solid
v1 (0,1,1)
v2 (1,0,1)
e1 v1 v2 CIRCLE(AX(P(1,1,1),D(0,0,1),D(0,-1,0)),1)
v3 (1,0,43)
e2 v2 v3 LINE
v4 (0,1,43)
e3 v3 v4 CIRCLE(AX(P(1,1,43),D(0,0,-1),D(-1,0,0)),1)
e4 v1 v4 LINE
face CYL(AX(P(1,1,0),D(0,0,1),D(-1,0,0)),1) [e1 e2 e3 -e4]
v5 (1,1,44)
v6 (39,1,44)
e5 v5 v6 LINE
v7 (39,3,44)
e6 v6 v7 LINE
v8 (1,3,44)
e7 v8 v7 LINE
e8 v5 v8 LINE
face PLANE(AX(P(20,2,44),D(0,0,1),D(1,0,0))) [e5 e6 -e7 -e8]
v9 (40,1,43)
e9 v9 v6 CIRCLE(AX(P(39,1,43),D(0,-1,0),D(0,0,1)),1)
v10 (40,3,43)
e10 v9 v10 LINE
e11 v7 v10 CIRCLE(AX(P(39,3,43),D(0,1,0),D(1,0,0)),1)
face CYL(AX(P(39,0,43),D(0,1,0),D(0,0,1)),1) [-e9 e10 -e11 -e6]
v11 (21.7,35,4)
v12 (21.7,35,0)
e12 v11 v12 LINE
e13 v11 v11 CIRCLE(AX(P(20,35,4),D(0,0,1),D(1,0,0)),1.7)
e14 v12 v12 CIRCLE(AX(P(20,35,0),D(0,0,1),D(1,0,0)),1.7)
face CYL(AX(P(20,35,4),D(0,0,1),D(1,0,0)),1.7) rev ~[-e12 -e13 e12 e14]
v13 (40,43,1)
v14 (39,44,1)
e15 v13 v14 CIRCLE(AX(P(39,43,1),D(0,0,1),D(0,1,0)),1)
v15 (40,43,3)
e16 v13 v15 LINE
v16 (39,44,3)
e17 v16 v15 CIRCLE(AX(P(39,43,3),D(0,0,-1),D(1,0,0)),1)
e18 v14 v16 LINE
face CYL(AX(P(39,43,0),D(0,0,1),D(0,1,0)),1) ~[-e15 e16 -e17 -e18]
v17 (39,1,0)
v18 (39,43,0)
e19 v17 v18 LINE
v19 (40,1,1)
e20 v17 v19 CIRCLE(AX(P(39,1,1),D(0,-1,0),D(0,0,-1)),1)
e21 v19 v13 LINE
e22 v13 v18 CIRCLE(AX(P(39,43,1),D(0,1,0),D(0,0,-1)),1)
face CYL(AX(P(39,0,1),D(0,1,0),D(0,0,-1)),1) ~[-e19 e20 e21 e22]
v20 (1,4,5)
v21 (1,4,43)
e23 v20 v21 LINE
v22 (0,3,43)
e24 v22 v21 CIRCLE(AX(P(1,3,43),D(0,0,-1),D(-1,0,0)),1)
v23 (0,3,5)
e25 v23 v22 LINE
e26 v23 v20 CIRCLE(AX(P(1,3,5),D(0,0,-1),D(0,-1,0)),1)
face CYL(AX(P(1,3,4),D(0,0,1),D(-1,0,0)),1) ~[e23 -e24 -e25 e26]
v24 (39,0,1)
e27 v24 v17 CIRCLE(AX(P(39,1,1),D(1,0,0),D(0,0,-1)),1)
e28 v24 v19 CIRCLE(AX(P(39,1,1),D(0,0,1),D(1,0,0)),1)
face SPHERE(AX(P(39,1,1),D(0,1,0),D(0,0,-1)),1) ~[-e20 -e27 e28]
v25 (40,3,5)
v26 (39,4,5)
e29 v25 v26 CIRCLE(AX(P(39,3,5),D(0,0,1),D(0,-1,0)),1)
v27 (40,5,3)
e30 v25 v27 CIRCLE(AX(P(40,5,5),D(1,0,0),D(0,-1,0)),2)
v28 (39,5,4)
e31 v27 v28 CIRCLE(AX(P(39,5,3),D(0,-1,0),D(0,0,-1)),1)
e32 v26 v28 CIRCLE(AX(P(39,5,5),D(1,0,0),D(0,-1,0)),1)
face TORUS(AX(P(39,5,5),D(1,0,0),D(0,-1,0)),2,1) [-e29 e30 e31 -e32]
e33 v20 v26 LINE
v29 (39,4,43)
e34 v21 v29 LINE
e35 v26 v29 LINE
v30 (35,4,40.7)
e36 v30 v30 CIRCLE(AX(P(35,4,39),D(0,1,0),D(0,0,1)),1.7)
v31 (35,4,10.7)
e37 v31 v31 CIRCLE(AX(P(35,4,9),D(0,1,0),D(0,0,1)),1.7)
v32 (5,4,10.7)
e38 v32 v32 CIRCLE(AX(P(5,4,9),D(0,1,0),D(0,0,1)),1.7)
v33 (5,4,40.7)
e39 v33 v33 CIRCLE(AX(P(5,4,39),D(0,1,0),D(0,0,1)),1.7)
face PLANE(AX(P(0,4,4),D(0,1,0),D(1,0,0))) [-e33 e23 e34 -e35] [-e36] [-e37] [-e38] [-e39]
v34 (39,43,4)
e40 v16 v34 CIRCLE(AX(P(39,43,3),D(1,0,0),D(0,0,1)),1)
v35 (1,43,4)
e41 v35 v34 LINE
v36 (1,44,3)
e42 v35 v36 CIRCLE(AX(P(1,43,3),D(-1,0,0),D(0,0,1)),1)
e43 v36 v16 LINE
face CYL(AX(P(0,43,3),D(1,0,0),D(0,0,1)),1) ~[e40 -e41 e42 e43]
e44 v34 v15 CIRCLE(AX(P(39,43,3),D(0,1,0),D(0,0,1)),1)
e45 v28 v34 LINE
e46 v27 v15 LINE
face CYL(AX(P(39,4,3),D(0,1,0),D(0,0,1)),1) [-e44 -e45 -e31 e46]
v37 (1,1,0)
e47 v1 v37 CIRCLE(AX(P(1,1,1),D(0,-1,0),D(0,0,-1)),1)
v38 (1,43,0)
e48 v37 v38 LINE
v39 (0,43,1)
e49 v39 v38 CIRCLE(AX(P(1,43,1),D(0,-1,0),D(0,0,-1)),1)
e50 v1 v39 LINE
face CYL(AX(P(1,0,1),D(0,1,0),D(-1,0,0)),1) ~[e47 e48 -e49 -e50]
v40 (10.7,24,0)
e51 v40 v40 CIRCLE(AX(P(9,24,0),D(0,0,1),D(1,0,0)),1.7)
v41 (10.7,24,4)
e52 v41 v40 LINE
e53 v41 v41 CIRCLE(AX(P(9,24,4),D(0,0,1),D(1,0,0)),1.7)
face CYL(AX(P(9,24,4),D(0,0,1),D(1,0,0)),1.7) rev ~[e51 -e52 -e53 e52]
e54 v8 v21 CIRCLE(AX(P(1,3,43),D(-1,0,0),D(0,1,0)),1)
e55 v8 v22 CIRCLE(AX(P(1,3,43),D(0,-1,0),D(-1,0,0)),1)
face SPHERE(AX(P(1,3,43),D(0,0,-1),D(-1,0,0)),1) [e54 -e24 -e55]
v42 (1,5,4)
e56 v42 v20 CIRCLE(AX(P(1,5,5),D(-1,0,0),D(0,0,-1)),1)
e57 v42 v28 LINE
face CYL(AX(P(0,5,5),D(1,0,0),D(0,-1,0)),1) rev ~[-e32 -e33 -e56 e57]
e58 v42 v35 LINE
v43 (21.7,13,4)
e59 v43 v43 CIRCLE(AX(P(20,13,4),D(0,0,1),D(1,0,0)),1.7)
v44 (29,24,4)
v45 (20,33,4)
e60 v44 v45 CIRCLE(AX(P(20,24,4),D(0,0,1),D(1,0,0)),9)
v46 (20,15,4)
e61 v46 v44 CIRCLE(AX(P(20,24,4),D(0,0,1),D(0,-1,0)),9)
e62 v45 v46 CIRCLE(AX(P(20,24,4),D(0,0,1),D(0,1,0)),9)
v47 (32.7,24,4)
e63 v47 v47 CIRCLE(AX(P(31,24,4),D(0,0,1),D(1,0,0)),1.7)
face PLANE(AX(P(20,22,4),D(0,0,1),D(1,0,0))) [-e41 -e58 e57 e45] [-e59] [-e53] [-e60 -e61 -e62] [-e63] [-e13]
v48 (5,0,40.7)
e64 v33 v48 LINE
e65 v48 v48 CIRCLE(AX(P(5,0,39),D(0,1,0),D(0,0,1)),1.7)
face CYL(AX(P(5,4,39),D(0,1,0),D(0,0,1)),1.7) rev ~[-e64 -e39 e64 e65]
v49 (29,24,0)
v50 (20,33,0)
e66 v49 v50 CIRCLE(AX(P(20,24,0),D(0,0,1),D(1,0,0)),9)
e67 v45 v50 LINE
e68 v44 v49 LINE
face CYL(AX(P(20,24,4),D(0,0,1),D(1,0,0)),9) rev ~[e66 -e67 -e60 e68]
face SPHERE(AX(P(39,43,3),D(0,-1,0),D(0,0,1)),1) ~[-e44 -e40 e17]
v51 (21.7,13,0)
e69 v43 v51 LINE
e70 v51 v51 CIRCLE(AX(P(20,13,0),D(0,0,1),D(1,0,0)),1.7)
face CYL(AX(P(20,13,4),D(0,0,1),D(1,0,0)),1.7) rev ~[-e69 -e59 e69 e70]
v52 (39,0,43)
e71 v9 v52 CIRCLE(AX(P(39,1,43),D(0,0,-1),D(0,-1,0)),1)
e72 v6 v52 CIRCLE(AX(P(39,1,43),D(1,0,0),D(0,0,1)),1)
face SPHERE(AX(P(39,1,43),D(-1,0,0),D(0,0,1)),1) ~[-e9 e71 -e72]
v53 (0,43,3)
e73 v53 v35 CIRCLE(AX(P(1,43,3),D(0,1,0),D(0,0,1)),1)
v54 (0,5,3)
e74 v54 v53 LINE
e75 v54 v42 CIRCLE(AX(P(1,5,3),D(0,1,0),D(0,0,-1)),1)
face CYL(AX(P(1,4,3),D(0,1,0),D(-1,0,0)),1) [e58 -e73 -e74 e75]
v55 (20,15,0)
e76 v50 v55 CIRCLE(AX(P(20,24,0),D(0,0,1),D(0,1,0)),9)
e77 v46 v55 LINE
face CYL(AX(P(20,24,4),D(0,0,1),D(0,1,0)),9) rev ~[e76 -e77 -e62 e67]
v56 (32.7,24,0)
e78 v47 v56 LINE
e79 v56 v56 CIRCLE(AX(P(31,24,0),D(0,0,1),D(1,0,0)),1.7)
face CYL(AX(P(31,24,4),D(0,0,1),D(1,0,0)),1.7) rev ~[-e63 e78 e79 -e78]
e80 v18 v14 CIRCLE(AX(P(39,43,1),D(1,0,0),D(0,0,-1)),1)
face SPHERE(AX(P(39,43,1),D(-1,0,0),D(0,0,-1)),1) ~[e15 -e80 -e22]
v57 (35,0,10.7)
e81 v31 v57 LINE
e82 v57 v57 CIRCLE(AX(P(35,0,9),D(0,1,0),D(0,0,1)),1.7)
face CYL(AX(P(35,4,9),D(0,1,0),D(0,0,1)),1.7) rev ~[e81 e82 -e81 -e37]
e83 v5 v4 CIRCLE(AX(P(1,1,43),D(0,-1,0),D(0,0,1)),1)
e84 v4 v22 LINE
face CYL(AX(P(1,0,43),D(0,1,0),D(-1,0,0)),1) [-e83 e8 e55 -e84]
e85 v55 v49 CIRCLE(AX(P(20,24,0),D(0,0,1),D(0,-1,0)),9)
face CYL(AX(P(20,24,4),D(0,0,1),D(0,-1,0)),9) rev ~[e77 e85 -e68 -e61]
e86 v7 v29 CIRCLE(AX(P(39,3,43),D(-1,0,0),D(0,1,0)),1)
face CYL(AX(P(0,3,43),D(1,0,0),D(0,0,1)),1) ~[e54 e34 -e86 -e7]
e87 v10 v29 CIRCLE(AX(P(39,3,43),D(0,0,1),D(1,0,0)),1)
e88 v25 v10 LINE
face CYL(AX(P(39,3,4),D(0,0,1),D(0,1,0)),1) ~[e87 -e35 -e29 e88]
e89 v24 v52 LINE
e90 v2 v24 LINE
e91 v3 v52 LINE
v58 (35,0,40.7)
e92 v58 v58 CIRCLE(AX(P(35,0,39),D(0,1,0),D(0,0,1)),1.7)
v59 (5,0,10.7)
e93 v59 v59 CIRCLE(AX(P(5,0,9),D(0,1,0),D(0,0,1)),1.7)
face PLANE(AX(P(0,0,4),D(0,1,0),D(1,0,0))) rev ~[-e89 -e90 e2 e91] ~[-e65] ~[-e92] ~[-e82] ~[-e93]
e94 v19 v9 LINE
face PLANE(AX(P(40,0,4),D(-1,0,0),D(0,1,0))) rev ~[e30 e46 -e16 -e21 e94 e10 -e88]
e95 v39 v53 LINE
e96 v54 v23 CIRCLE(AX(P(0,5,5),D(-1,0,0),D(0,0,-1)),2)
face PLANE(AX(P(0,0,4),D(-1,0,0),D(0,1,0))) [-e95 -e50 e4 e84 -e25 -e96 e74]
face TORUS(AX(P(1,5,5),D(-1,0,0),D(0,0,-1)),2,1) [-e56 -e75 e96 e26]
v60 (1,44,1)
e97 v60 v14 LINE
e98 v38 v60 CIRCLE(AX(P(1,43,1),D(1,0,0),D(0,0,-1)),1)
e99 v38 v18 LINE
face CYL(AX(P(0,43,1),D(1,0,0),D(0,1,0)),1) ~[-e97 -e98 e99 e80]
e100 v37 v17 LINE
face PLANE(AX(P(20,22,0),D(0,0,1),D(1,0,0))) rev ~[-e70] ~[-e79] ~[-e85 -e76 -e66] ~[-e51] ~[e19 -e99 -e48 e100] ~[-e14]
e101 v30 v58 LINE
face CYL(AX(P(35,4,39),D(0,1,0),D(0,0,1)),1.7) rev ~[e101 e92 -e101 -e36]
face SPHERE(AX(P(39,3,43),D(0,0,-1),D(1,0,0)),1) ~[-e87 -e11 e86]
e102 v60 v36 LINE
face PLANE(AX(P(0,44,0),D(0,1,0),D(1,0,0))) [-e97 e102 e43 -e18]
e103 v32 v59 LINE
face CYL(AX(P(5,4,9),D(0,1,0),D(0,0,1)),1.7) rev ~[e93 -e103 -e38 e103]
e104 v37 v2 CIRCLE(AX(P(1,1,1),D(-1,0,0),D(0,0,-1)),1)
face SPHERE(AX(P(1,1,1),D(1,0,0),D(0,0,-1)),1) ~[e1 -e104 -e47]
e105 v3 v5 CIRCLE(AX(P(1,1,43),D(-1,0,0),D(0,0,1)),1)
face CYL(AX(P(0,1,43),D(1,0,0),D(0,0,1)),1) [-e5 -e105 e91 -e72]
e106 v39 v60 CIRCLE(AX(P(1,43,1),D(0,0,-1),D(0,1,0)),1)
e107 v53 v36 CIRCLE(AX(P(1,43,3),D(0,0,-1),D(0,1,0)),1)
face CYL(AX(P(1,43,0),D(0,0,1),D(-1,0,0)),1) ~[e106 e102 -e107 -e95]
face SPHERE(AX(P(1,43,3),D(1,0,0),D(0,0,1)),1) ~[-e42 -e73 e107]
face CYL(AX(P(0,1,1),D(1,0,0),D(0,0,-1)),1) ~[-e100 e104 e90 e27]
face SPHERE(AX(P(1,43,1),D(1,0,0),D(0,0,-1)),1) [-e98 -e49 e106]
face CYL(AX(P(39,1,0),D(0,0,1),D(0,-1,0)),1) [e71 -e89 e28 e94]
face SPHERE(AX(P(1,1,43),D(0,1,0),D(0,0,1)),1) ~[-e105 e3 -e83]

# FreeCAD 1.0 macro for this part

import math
import FreeCAD as App
import Part
import Sketcher
from FreeCAD import Vector


def edges_at(feature, points):
    """Names of the edges that pass closest to the given points."""
    edges = feature.Shape.Edges
    near = lambda p: min(range(len(edges)), key=lambda i: edges[i].distToShape(Part.Vertex(*p))[0])
    return sorted({f"Edge{near(p) + 1}" for p in points})

doc = App.newDocument("Part")
body = doc.addObject("PartDesign::Body", "Body")

# Sketch on XY plane
sketch1 = body.newObject("Sketcher::SketchObject", "Sketch")
sketch1.AttachmentSupport = (doc.getObject("XY_Plane"), [""])
sketch1.MapMode = "FlatFace"
sketch1.addGeometry([
    Part.LineSegment(Vector(0, 44, 0), Vector(0, 0, 0)),
    Part.LineSegment(Vector(0, 0, 0), Vector(40, 0, 0)),
    Part.LineSegment(Vector(40, 0, 0), Vector(40, 44, 0)),
    Part.LineSegment(Vector(40, 44, 0), Vector(0, 44, 0)),
], False)
sketch1.addConstraint([
    Sketcher.Constraint("Coincident", 0, 2, 1, 1),
    Sketcher.Constraint("Coincident", 1, 2, 2, 1),
    Sketcher.Constraint("Coincident", 2, 2, 3, 1),
    Sketcher.Constraint("Coincident", 3, 2, 0, 1),
    Sketcher.Constraint("Vertical", 0),
    Sketcher.Constraint("Horizontal", 1),
    Sketcher.Constraint("Vertical", 2),
    Sketcher.Constraint("Horizontal", 3),
    Sketcher.Constraint("Coincident", 0, 2, -1, 1),
    Sketcher.Constraint("DistanceX", 1, 1, 1, 2, 40.0),
    Sketcher.Constraint("DistanceY", 0, 2, 0, 1, 44.0),
])
pad1 = body.newObject("PartDesign::Pad", "Pad")
pad1.Profile = sketch1
pad1.Length = 4

# Sketch on XY plane
sketch2 = body.newObject("Sketcher::SketchObject", "Sketch001")
sketch2.AttachmentSupport = (doc.getObject("XY_Plane"), [""])
sketch2.MapMode = "FlatFace"
sketch2.AttachmentOffset = App.Placement(Vector(0, 0, 4), App.Rotation())
sketch2.addGeometry([
    Part.LineSegment(Vector(0, 4, 0), Vector(0, 0, 0)),
    Part.LineSegment(Vector(0, 0, 0), Vector(40, 0, 0)),
    Part.LineSegment(Vector(40, 0, 0), Vector(40, 4, 0)),
    Part.LineSegment(Vector(40, 4, 0), Vector(0, 4, 0)),
], False)
sketch2.addConstraint([
    Sketcher.Constraint("Coincident", 0, 2, 1, 1),
    Sketcher.Constraint("Coincident", 1, 2, 2, 1),
    Sketcher.Constraint("Coincident", 2, 2, 3, 1),
    Sketcher.Constraint("Coincident", 3, 2, 0, 1),
    Sketcher.Constraint("Vertical", 0),
    Sketcher.Constraint("Horizontal", 1),
    Sketcher.Constraint("Vertical", 2),
    Sketcher.Constraint("Horizontal", 3),
    Sketcher.Constraint("Coincident", 0, 2, -1, 1),
    Sketcher.Constraint("DistanceX", 1, 1, 1, 2, 40.0),
    Sketcher.Constraint("DistanceY", 0, 2, 0, 1, 4.0),
])
pad2 = body.newObject("PartDesign::Pad", "Pad001")
pad2.Profile = sketch2
pad2.Length = 40

# Sketch on XY plane
sketch3 = body.newObject("Sketcher::SketchObject", "Sketch002")
sketch3.AttachmentSupport = (doc.getObject("XY_Plane"), [""])
sketch3.MapMode = "FlatFace"
sketch3.AttachmentOffset = App.Placement(Vector(0, 0, 4), App.Rotation())
sketch3.addGeometry([
    Part.ArcOfCircle(Part.Circle(Vector(20, 24, 0), Vector(0, 0, 1), 9), math.radians(0), math.radians(90)),  # 0
    Part.ArcOfCircle(Part.Circle(Vector(20, 24, 0), Vector(0, 0, 1), 9), math.radians(90), math.radians(270)),  # 1
    Part.ArcOfCircle(Part.Circle(Vector(20, 24, 0), Vector(0, 0, 1), 9), math.radians(-90), math.radians(0)),  # 2
    Part.Circle(Vector(9, 24, 0), Vector(0, 0, 1), 1.7),  # 3
    Part.Circle(Vector(20, 35, 0), Vector(0, 0, 1), 1.7),  # 4
    Part.Circle(Vector(31, 24, 0), Vector(0, 0, 1), 1.7),  # 5
    Part.Circle(Vector(20, 13, 0), Vector(0, 0, 1), 1.7),  # 6
], False)
sketch3.addConstraint([
    Sketcher.Constraint("Tangent", 0, 2, 1, 1),
    Sketcher.Constraint("Tangent", 1, 2, 2, 1),
    Sketcher.Constraint("Tangent", 2, 2, 0, 1),
    Sketcher.Constraint("Equal", 3, 4),
    Sketcher.Constraint("Equal", 4, 5),
    Sketcher.Constraint("Equal", 5, 6),
    Sketcher.Constraint("Horizontal", 2, 3, 3, 3),
    Sketcher.Constraint("Horizontal", 3, 3, 5, 3),
    Sketcher.Constraint("Horizontal", 5, 3, 2, 2),
    Sketcher.Constraint("Vertical", 2, 3, 4, 3),
    Sketcher.Constraint("Vertical", 4, 3, 6, 3),
    Sketcher.Constraint("Vertical", 6, 3, 0, 2),
    Sketcher.Constraint("Vertical", 0, 2, 1, 2),
    Sketcher.Constraint("Radius", 0, 9.0),
    Sketcher.Constraint("Diameter", 3, 3.4),
    Sketcher.Constraint("DistanceX", -1, 1, 0, 3, 20.0),
    Sketcher.Constraint("DistanceY", -1, 1, 0, 3, 24.0),
    Sketcher.Constraint("DistanceX", -1, 1, 3, 3, 9.0),
    Sketcher.Constraint("DistanceY", -1, 1, 4, 3, 35.0),
    Sketcher.Constraint("DistanceX", -1, 1, 5, 3, 31.0),
    Sketcher.Constraint("DistanceY", -1, 1, 6, 3, 13.0),
])
pocket1 = body.newObject("PartDesign::Pocket", "Pocket")
pocket1.Profile = sketch3
pocket1.Type = "ThroughAll"

# Sketch on XZ plane
sketch4 = body.newObject("Sketcher::SketchObject", "Sketch003")
sketch4.AttachmentSupport = (doc.getObject("XZ_Plane"), [""])
sketch4.MapMode = "FlatFace"
sketch4.AttachmentOffset = App.Placement(Vector(0, 0, -4), App.Rotation())
sketch4.addGeometry([
    Part.Circle(Vector(5, 9, 0), Vector(0, 0, 1), 1.7),
    Part.Circle(Vector(35, 9, 0), Vector(0, 0, 1), 1.7),
    Part.Circle(Vector(35, 39, 0), Vector(0, 0, 1), 1.7),
    Part.Circle(Vector(5, 39, 0), Vector(0, 0, 1), 1.7),
], False)
sketch4.addConstraint([
    Sketcher.Constraint("Equal", 0, 1),
    Sketcher.Constraint("Equal", 1, 2),
    Sketcher.Constraint("Equal", 2, 3),
    Sketcher.Constraint("Horizontal", 0, 3, 1, 3),
    Sketcher.Constraint("Horizontal", 2, 3, 3, 3),
    Sketcher.Constraint("Vertical", 1, 3, 2, 3),
    Sketcher.Constraint("Vertical", 0, 3, 3, 3),
    Sketcher.Constraint("Diameter", 0, 3.4),
    Sketcher.Constraint("DistanceX", -1, 1, 0, 3, 5.0),
    Sketcher.Constraint("DistanceY", -1, 1, 0, 3, 9.0),
    Sketcher.Constraint("DistanceX", -1, 1, 1, 3, 35.0),
    Sketcher.Constraint("DistanceY", -1, 1, 2, 3, 39.0),
])
pocket2 = body.newObject("PartDesign::Pocket", "Pocket001")
pocket2.Profile = sketch4
pocket2.Type = "ThroughAll"
pocket2.Reversed = True
doc.recompute()

fillet = body.newObject("PartDesign::Fillet", "Fillet")
fillet.Base = (pocket2, edges_at(pocket2, [
    (40, 24, 4),
    (0, 4, 24),
    (20, 44, 4),
    (20, 4, 4),
    (40, 4, 24),
    (0, 2, 44),
    (20, 0, 44),
    (40, 2, 44),
    (20, 4, 44),
    (0, 24, 4),
    (20, 44, 0),
    (40, 22, 0),
    (20, 0, 0),
    (0, 22, 0),
    (0, 44, 2),
    (40, 44, 2),
    (40, 0, 22),
    (0, 0, 22),
]))
fillet.Radius = 1

doc.recompute()
